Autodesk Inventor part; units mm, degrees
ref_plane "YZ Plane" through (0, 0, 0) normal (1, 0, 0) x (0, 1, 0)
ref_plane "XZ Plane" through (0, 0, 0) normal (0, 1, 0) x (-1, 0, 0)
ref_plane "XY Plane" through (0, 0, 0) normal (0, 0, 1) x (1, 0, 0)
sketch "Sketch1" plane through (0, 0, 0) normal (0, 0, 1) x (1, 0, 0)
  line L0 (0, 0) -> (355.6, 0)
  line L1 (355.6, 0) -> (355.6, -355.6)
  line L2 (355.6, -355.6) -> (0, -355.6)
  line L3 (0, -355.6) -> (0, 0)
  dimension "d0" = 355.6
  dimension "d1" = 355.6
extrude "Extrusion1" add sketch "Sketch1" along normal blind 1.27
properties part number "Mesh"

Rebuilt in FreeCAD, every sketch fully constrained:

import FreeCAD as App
import Part
import Sketcher
from FreeCAD import Vector
Q = App.Units.Quantity


def add_polygon(sketch, points):
    """Adds a closed chain of lines whose ends are joined by coincident constraints."""
    first, n = sketch.GeometryCount, len(points)
    for a, b in zip(points, points[1:] + points[:1]):
        sketch.addGeometry(Part.LineSegment(App.Vector(*a, 0), App.Vector(*b, 0)), False)
    for i in range(n):
        sketch.addConstraint(Sketcher.Constraint("Coincident", first + i, 2, first + (i + 1) % n, 1))

doc = App.newDocument("Part")
body = doc.addObject("PartDesign::Body", "Body")

sketch1 = body.newObject("Sketcher::SketchObject", "Sketch")
sketch1.AttachmentSupport = (doc.getObject("XY_Plane"), [""])
sketch1.MapMode = "FlatFace"
add_polygon(sketch1, [(355.6, 0), (0, 0), (0, -355.6), (355.6, -355.6)])
sketch1.addConstraint(Sketcher.Constraint("Horizontal", 0))
sketch1.addConstraint(Sketcher.Constraint("Vertical", 1))
sketch1.addConstraint(Sketcher.Constraint("Horizontal", 2))
sketch1.addConstraint(Sketcher.Constraint("Vertical", 3))
sketch1.addConstraint(Sketcher.Constraint("Coincident", 0, 2, -1, 1))
sketch1.addConstraint(Sketcher.Constraint("Equal", 2, 1))
sketch1.addConstraint(Sketcher.Constraint("DistanceX", 0, 2, 0, 1, Q("14 in")))
pad1 = body.newObject("PartDesign::Pad", "Pad")
pad1.Profile = sketch1
pad1.Length = Q("0.05 in")

doc.recompute()
